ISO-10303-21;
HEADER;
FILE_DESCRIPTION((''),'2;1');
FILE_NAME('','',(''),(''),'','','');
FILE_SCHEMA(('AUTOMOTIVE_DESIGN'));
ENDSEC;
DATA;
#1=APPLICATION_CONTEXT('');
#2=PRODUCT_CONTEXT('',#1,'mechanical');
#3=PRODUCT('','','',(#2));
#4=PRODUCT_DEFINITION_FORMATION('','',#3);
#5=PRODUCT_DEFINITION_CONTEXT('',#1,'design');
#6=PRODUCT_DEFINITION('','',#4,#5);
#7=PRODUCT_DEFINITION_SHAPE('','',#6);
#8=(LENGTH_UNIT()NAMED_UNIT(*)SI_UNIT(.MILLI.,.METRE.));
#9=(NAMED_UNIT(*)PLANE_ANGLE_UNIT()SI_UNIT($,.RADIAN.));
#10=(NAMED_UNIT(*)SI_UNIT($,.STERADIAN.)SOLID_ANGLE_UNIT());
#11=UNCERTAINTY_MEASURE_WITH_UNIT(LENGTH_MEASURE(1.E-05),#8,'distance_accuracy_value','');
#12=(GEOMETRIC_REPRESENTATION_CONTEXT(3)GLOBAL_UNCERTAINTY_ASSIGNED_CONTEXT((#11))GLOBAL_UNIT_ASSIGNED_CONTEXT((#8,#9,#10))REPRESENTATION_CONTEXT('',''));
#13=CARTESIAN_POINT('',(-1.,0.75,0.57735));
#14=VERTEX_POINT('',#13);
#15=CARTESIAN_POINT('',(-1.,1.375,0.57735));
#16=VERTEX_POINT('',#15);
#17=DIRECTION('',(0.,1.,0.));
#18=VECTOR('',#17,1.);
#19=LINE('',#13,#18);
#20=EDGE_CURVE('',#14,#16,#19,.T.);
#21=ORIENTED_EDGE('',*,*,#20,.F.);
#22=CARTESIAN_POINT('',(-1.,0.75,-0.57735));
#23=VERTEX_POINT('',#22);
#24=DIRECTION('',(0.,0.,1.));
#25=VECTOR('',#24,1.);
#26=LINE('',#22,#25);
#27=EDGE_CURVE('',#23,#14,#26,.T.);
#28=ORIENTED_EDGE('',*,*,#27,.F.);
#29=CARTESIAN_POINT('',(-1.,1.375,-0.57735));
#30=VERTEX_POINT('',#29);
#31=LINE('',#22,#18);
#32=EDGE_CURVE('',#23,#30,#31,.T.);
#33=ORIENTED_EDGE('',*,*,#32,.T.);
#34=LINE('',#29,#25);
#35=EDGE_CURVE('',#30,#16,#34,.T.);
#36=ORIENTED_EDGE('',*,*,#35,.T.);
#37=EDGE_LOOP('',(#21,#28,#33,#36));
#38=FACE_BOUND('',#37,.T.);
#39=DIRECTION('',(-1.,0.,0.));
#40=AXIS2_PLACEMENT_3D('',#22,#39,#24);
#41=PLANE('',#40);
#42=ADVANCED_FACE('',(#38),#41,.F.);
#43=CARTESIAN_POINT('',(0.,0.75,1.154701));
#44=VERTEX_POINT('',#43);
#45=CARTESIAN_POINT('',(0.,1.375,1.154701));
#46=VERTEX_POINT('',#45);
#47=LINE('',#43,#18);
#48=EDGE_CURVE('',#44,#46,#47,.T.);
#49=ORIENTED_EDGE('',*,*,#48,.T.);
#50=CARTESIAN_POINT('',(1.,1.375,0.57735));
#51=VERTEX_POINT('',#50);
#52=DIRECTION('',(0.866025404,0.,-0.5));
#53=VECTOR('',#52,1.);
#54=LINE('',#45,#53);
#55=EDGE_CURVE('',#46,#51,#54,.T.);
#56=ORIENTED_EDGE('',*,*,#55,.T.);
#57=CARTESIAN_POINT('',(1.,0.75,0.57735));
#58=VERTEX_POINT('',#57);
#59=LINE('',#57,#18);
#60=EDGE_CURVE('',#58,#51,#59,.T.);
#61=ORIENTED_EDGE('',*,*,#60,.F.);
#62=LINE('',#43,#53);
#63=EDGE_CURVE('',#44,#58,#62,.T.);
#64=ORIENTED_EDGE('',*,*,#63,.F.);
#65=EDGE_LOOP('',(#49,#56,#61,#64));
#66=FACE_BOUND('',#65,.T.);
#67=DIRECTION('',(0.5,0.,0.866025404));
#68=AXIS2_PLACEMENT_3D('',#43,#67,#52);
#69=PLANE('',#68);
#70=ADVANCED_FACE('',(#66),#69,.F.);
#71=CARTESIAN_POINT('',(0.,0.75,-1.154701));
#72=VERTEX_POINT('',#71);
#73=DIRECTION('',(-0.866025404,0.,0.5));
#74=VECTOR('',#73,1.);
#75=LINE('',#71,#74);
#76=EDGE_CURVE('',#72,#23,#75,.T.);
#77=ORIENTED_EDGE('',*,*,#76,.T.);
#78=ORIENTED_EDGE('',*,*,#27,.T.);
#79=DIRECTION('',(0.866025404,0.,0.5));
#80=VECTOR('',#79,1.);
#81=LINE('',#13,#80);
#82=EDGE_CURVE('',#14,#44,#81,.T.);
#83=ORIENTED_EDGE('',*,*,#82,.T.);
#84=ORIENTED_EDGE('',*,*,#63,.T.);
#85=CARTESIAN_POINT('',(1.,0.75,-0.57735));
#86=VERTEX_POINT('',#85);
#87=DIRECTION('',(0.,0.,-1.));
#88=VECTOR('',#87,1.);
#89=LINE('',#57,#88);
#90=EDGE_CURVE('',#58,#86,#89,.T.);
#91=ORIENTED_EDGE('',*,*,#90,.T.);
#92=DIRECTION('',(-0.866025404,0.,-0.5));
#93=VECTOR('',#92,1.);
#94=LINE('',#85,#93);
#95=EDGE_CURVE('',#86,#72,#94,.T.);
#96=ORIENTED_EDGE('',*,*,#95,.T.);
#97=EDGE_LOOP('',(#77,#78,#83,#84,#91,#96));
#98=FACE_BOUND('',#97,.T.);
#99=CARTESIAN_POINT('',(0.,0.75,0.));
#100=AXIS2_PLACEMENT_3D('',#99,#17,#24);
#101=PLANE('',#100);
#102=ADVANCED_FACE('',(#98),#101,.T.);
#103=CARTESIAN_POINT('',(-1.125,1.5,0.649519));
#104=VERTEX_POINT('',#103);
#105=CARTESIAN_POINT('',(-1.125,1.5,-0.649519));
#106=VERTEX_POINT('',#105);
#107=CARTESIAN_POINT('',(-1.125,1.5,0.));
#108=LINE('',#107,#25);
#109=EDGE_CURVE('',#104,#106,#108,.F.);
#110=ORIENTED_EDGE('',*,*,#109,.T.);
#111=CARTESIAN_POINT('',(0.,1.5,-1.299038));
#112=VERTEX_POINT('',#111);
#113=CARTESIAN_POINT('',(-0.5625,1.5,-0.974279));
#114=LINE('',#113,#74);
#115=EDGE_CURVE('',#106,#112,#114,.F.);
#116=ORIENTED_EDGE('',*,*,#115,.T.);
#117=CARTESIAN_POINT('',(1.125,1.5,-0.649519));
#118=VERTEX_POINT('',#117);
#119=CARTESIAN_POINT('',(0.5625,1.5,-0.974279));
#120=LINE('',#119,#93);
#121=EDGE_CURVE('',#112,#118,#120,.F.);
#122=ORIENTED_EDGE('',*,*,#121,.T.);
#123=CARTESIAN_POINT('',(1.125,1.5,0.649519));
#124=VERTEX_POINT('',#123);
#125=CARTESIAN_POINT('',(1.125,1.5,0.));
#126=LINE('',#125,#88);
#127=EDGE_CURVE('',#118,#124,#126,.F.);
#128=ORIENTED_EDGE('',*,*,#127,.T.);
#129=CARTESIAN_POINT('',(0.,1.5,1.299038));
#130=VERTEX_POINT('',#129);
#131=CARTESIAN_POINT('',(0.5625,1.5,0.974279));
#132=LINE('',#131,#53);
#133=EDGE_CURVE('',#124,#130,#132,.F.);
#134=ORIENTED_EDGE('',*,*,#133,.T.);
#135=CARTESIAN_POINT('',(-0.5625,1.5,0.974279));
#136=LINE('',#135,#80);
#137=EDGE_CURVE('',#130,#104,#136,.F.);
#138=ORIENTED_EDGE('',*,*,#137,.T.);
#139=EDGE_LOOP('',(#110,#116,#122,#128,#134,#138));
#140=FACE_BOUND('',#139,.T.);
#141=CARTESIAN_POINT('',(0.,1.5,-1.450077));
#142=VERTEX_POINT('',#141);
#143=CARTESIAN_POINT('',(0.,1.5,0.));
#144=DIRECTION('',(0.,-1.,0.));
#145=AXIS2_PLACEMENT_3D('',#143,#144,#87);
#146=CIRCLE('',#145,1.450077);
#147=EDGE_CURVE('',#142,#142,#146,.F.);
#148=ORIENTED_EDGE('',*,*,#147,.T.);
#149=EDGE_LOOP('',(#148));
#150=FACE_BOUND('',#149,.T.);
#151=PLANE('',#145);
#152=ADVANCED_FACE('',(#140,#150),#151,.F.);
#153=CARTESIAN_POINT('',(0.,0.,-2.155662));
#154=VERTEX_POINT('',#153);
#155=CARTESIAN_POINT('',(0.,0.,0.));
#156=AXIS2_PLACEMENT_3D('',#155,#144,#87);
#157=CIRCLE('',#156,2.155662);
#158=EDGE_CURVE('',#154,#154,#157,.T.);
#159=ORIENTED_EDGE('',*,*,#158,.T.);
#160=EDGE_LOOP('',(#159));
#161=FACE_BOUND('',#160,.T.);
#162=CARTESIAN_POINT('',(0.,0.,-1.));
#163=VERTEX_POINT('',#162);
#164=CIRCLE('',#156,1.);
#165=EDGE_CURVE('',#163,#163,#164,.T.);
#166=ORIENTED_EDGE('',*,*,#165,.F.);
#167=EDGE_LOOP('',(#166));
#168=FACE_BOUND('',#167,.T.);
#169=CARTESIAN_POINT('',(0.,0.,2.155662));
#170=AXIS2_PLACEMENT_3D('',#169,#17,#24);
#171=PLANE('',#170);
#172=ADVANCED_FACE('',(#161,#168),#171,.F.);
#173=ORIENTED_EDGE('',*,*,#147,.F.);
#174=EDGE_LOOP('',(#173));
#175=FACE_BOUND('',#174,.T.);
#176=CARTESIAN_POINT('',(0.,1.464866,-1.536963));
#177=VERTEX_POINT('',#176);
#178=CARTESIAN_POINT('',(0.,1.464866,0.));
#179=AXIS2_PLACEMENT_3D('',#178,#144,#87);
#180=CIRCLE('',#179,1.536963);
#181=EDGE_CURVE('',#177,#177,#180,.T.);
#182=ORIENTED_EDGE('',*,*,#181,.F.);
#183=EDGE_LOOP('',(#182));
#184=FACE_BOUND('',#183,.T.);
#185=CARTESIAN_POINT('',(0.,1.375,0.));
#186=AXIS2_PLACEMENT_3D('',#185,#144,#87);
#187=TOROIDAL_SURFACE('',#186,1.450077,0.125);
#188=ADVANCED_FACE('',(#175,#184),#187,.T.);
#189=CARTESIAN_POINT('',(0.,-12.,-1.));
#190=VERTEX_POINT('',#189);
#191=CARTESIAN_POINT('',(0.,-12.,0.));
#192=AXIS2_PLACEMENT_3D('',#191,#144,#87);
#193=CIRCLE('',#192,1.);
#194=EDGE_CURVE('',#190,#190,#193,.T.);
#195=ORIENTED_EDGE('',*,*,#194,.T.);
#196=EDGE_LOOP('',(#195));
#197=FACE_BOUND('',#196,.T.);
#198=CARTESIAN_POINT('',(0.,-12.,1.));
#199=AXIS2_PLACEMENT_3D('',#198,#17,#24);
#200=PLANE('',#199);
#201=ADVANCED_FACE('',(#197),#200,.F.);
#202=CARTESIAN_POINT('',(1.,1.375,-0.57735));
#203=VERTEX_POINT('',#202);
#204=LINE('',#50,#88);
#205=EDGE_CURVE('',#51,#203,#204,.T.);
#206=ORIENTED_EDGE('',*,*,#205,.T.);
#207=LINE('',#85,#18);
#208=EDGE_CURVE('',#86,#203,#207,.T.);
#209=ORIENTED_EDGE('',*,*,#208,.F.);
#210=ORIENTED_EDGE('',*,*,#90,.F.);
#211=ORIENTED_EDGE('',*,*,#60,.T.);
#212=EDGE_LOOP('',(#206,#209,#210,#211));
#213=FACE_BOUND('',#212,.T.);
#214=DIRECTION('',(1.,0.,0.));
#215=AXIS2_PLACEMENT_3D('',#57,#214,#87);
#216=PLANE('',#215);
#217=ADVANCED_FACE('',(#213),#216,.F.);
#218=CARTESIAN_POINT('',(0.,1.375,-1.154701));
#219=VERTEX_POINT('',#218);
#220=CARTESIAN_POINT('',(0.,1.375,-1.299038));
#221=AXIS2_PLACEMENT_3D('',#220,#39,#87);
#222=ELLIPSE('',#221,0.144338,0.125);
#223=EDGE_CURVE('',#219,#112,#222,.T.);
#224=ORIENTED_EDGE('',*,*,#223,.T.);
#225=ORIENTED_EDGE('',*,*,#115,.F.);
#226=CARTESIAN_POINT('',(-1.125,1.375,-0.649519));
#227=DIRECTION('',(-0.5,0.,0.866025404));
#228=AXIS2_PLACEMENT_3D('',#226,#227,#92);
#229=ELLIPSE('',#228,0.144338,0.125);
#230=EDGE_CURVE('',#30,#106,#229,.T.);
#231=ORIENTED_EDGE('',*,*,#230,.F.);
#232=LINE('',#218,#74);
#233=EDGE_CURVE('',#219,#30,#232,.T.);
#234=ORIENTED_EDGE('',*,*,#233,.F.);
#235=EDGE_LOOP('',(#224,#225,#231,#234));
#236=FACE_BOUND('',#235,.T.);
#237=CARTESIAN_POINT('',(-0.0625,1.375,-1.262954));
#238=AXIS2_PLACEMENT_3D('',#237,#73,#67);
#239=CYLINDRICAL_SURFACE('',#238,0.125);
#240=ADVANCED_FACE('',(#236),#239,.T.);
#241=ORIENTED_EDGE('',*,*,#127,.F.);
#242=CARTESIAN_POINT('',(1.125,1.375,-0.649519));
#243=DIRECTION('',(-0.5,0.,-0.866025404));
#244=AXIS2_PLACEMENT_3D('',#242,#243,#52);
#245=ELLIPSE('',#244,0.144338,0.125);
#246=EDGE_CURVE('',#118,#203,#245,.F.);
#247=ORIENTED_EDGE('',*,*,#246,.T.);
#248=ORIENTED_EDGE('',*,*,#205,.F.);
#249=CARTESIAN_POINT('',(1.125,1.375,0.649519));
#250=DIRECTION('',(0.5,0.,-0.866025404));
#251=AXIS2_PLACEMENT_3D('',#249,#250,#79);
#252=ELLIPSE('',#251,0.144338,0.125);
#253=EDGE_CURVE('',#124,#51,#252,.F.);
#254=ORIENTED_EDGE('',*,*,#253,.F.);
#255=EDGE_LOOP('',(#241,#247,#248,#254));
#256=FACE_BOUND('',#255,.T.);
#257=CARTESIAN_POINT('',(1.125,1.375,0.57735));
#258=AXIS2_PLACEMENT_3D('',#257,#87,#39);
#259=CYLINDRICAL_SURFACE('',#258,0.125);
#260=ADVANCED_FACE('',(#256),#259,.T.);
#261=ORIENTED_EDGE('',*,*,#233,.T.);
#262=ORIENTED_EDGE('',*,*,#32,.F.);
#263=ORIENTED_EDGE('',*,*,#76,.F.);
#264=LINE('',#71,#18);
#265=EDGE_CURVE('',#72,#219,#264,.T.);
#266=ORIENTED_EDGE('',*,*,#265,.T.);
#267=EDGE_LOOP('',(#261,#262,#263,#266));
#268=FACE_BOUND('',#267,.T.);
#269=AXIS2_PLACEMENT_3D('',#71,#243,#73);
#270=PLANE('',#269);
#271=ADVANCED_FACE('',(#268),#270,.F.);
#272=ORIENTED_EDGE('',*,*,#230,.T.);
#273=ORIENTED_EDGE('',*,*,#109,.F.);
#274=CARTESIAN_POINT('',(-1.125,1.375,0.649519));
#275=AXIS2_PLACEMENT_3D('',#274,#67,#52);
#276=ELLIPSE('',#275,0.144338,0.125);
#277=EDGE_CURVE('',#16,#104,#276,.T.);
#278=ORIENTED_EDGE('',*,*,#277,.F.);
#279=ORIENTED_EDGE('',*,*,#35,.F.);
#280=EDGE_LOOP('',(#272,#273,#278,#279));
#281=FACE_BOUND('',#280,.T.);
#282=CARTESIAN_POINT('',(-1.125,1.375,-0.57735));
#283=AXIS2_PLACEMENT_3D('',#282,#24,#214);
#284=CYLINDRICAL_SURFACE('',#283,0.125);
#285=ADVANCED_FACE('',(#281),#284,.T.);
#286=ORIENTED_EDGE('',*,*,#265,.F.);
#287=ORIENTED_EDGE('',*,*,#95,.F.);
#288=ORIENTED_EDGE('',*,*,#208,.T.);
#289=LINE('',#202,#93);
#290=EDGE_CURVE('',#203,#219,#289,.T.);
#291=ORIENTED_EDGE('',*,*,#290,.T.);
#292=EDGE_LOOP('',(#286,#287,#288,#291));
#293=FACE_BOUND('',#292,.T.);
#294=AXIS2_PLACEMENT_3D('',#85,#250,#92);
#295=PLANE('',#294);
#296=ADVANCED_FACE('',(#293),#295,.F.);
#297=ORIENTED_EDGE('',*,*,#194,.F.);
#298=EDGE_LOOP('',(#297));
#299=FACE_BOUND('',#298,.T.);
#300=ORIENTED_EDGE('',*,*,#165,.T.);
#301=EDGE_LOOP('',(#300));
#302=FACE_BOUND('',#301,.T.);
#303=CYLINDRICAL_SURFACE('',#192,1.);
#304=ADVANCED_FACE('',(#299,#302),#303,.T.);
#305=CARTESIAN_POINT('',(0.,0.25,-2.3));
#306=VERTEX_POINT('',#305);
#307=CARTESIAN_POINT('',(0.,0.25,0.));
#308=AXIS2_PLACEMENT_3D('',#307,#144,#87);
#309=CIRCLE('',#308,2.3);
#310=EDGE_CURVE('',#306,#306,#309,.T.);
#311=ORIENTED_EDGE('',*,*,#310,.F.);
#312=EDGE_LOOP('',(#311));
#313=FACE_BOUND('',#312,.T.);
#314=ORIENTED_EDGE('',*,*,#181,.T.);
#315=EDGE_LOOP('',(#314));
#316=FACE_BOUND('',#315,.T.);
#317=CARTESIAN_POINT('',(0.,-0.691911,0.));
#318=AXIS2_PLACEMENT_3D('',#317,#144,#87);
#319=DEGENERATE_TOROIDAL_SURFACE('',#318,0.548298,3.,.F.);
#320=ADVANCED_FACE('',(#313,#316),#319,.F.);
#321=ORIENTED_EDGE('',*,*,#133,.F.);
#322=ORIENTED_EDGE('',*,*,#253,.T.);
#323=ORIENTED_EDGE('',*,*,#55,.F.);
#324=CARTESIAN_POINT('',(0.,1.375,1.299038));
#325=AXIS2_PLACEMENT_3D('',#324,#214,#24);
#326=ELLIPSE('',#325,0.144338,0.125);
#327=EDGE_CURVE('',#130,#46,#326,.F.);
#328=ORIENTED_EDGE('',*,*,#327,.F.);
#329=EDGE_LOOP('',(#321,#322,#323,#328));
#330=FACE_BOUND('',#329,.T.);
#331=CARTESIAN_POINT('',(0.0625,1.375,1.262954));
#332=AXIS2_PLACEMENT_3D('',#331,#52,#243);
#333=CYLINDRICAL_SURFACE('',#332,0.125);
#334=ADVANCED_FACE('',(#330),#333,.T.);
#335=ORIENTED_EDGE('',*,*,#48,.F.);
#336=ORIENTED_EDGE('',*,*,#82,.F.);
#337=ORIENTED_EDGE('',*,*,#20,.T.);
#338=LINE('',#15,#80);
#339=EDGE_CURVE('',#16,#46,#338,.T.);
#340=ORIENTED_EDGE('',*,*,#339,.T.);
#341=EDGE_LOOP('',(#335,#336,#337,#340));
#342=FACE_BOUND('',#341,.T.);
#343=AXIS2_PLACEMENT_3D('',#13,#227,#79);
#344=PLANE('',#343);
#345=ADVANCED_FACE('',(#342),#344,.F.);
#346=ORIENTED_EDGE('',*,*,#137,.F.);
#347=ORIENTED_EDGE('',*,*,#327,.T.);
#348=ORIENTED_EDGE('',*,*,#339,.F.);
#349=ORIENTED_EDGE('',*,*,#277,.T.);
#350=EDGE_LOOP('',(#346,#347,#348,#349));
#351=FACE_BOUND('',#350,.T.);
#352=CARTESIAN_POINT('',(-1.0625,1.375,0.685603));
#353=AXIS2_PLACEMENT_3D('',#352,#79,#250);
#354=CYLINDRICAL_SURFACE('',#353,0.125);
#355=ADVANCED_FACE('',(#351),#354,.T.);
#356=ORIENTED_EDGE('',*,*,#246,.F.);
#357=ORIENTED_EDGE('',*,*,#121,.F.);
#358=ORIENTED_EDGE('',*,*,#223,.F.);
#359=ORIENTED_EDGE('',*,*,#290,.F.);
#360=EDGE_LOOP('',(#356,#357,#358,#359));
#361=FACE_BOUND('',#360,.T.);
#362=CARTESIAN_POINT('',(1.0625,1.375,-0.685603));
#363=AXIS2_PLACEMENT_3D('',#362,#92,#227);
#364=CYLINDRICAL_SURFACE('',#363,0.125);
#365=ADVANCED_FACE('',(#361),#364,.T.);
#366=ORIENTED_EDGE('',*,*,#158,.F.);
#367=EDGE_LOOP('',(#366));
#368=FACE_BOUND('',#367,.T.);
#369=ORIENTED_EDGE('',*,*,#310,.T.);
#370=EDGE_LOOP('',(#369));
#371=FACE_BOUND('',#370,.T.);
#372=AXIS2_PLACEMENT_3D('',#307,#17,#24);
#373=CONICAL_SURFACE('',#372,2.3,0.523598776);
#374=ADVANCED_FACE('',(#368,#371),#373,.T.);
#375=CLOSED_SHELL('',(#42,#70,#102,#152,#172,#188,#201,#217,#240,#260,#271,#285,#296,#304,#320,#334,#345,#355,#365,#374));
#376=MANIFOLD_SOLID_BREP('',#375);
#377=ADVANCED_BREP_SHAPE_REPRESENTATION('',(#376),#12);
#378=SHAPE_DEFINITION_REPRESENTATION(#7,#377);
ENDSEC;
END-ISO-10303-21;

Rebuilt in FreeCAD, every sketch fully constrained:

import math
import FreeCAD as App
import Part
import Sketcher

V = App.Vector
Q = App.Units.Quantity


def edges_at(feature, points):
    """Names of the edges that pass closest to the given points."""
    edges = feature.Shape.Edges
    near = lambda p: min(range(len(edges)), key=lambda i: edges[i].distToShape(Part.Vertex(*p))[0])
    return sorted({f"Edge{near(p) + 1}" for p in points})

doc = App.newDocument("Part")
body = doc.addObject("PartDesign::Body", "Body")

sketch1 = body.newObject("Sketcher::SketchObject", "Sketch")
sketch1.AttachmentSupport = (doc.getObject("YZ_Plane"), [""])
sketch1.MapMode = "FlatFace"
sketch1.addGeometry([
    Part.LineSegment(V(1.5, 0, 0), V(1.5, 1.5, 0)),
    Part.ArcOfCircle(Part.Circle(V(-0.69, -0.55, 0), V(0, 0, 1), 3), math.radians(43), math.radians(72)),
    Part.LineSegment(V(0.25, 2.3, 0), V(0, 2.16, 0)),
    Part.LineSegment(V(0, 2.16, 0), V(0, 1, 0)),
    Part.LineSegment(V(0, 1, 0), V(-12, 1, 0)),
    Part.LineSegment(V(-12, 1, 0), V(-12, 0, 0)),
    Part.LineSegment(V(-12, 0, 0), V(1.5, 0, 0)),
], False)
sketch1.addConstraint([
    Sketcher.Constraint("Coincident", 0, 2, 1, 1),
    Sketcher.Constraint("Coincident", 1, 2, 2, 1),
    Sketcher.Constraint("Coincident", 2, 2, 3, 1),
    Sketcher.Constraint("Coincident", 3, 2, 4, 1),
    Sketcher.Constraint("Coincident", 4, 2, 5, 1),
    Sketcher.Constraint("Coincident", 5, 2, 6, 1),
    Sketcher.Constraint("Coincident", 6, 2, 0, 1),
    Sketcher.Constraint("Vertical", 0),
    Sketcher.Constraint("Vertical", 3),
    Sketcher.Constraint("Horizontal", 4),
    Sketcher.Constraint("Vertical", 5),
    Sketcher.Constraint("Horizontal", 6),
    Sketcher.Constraint("PointOnObject", 2, 2, -2),
    Sketcher.Constraint("PointOnObject", 5, 2, -1),
    Sketcher.Constraint("Radius", 1, Q("3 mm")),
    Sketcher.Constraint("DistanceX", 4, 2, 4, 1, Q("12 mm")),
    Sketcher.Constraint("DistanceY", 5, 2, 5, 1, Q("1 mm")),
    Sketcher.Constraint("Angle", 2, Q("-150 deg")),
    Sketcher.Constraint("DistanceX", 6, 1, 6, 2, Q("13.5 mm")),
    Sketcher.Constraint("DistanceY", 0, 1, 0, 2, Q("1.5 mm")),
    Sketcher.Constraint("DistanceY", -1, 1, 1, 2, Q("2.3 mm")),
    Sketcher.Constraint("DistanceX", -1, 1, 1, 2, Q("0.25 mm")),
])
revolution = body.newObject("PartDesign::Revolution", "Revolution")
revolution.Profile = sketch1
revolution.ReferenceAxis = (sketch1, ["H_Axis"])
revolution.Angle = 360

sketch2 = body.newObject("Sketcher::SketchObject", "Sketch001")
sketch2.AttachmentSupport = (doc.getObject("XZ_Plane"), [""])
sketch2.MapMode = "FlatFace"
sketch2.AttachmentOffset = App.Placement(V(0, 0, -1.5), App.Rotation())
sketch2.addGeometry([
    Part.LineSegment(V(0, -1.2, 0), V(-1, -0.6, 0)),
    Part.LineSegment(V(-1, -0.6, 0), V(-1, 0.6, 0)),
    Part.LineSegment(V(-1, 0.6, 0), V(0, 1.2, 0)),
    Part.LineSegment(V(0, 1.2, 0), V(1, 0.6, 0)),
    Part.LineSegment(V(1, 0.6, 0), V(1, -0.6, 0)),
    Part.LineSegment(V(1, -0.6, 0), V(0, -1.2, 0)),
], False)
sketch2.addConstraint([
    Sketcher.Constraint("Coincident", 0, 2, 1, 1),
    Sketcher.Constraint("Coincident", 1, 2, 2, 1),
    Sketcher.Constraint("Coincident", 2, 2, 3, 1),
    Sketcher.Constraint("Coincident", 3, 2, 4, 1),
    Sketcher.Constraint("Coincident", 4, 2, 5, 1),
    Sketcher.Constraint("Coincident", 5, 2, 0, 1),
    Sketcher.Constraint("Vertical", 1),
    Sketcher.Constraint("Vertical", 4),
    Sketcher.Constraint("Symmetric", 0, 2, 3, 2, -1, 1),
    Sketcher.Constraint("Symmetric", 2, 2, 5, 2, -1, 1),
    Sketcher.Constraint("PointOnObject", 2, 2, -2),
    Sketcher.Constraint("Parallel", 2, 5),
    Sketcher.Constraint("Horizontal", 1, 2, 3, 2),
    Sketcher.Constraint("Angle", 0, Q("150 deg")),
    Sketcher.Constraint("DistanceX", 0, 2, -1, 1, Q("1 mm")),
    Sketcher.Constraint("DistanceY", 1, 1, 1, 2, Q("1.154701 mm")),
])
pocket1 = body.newObject("PartDesign::Pocket", "Pocket")
pocket1.Profile = sketch2
pocket1.Length = 0.75
pocket1.Reversed = True
doc.recompute()

fillet = body.newObject("PartDesign::Fillet", "Fillet")
fillet.Base = (pocket1, edges_at(pocket1, [
    (0.5, 1.5, -0.866),
    (-0.5, 1.5, -0.866),
    (-1, 1.5, 0),
    (-0.5, 1.5, 0.866),
    (0.5, 1.5, 0.866),
    (1, 1.5, 0),
    (0, 1.5, -1.5),
]))
fillet.Radius = 0.125

doc.recompute()
